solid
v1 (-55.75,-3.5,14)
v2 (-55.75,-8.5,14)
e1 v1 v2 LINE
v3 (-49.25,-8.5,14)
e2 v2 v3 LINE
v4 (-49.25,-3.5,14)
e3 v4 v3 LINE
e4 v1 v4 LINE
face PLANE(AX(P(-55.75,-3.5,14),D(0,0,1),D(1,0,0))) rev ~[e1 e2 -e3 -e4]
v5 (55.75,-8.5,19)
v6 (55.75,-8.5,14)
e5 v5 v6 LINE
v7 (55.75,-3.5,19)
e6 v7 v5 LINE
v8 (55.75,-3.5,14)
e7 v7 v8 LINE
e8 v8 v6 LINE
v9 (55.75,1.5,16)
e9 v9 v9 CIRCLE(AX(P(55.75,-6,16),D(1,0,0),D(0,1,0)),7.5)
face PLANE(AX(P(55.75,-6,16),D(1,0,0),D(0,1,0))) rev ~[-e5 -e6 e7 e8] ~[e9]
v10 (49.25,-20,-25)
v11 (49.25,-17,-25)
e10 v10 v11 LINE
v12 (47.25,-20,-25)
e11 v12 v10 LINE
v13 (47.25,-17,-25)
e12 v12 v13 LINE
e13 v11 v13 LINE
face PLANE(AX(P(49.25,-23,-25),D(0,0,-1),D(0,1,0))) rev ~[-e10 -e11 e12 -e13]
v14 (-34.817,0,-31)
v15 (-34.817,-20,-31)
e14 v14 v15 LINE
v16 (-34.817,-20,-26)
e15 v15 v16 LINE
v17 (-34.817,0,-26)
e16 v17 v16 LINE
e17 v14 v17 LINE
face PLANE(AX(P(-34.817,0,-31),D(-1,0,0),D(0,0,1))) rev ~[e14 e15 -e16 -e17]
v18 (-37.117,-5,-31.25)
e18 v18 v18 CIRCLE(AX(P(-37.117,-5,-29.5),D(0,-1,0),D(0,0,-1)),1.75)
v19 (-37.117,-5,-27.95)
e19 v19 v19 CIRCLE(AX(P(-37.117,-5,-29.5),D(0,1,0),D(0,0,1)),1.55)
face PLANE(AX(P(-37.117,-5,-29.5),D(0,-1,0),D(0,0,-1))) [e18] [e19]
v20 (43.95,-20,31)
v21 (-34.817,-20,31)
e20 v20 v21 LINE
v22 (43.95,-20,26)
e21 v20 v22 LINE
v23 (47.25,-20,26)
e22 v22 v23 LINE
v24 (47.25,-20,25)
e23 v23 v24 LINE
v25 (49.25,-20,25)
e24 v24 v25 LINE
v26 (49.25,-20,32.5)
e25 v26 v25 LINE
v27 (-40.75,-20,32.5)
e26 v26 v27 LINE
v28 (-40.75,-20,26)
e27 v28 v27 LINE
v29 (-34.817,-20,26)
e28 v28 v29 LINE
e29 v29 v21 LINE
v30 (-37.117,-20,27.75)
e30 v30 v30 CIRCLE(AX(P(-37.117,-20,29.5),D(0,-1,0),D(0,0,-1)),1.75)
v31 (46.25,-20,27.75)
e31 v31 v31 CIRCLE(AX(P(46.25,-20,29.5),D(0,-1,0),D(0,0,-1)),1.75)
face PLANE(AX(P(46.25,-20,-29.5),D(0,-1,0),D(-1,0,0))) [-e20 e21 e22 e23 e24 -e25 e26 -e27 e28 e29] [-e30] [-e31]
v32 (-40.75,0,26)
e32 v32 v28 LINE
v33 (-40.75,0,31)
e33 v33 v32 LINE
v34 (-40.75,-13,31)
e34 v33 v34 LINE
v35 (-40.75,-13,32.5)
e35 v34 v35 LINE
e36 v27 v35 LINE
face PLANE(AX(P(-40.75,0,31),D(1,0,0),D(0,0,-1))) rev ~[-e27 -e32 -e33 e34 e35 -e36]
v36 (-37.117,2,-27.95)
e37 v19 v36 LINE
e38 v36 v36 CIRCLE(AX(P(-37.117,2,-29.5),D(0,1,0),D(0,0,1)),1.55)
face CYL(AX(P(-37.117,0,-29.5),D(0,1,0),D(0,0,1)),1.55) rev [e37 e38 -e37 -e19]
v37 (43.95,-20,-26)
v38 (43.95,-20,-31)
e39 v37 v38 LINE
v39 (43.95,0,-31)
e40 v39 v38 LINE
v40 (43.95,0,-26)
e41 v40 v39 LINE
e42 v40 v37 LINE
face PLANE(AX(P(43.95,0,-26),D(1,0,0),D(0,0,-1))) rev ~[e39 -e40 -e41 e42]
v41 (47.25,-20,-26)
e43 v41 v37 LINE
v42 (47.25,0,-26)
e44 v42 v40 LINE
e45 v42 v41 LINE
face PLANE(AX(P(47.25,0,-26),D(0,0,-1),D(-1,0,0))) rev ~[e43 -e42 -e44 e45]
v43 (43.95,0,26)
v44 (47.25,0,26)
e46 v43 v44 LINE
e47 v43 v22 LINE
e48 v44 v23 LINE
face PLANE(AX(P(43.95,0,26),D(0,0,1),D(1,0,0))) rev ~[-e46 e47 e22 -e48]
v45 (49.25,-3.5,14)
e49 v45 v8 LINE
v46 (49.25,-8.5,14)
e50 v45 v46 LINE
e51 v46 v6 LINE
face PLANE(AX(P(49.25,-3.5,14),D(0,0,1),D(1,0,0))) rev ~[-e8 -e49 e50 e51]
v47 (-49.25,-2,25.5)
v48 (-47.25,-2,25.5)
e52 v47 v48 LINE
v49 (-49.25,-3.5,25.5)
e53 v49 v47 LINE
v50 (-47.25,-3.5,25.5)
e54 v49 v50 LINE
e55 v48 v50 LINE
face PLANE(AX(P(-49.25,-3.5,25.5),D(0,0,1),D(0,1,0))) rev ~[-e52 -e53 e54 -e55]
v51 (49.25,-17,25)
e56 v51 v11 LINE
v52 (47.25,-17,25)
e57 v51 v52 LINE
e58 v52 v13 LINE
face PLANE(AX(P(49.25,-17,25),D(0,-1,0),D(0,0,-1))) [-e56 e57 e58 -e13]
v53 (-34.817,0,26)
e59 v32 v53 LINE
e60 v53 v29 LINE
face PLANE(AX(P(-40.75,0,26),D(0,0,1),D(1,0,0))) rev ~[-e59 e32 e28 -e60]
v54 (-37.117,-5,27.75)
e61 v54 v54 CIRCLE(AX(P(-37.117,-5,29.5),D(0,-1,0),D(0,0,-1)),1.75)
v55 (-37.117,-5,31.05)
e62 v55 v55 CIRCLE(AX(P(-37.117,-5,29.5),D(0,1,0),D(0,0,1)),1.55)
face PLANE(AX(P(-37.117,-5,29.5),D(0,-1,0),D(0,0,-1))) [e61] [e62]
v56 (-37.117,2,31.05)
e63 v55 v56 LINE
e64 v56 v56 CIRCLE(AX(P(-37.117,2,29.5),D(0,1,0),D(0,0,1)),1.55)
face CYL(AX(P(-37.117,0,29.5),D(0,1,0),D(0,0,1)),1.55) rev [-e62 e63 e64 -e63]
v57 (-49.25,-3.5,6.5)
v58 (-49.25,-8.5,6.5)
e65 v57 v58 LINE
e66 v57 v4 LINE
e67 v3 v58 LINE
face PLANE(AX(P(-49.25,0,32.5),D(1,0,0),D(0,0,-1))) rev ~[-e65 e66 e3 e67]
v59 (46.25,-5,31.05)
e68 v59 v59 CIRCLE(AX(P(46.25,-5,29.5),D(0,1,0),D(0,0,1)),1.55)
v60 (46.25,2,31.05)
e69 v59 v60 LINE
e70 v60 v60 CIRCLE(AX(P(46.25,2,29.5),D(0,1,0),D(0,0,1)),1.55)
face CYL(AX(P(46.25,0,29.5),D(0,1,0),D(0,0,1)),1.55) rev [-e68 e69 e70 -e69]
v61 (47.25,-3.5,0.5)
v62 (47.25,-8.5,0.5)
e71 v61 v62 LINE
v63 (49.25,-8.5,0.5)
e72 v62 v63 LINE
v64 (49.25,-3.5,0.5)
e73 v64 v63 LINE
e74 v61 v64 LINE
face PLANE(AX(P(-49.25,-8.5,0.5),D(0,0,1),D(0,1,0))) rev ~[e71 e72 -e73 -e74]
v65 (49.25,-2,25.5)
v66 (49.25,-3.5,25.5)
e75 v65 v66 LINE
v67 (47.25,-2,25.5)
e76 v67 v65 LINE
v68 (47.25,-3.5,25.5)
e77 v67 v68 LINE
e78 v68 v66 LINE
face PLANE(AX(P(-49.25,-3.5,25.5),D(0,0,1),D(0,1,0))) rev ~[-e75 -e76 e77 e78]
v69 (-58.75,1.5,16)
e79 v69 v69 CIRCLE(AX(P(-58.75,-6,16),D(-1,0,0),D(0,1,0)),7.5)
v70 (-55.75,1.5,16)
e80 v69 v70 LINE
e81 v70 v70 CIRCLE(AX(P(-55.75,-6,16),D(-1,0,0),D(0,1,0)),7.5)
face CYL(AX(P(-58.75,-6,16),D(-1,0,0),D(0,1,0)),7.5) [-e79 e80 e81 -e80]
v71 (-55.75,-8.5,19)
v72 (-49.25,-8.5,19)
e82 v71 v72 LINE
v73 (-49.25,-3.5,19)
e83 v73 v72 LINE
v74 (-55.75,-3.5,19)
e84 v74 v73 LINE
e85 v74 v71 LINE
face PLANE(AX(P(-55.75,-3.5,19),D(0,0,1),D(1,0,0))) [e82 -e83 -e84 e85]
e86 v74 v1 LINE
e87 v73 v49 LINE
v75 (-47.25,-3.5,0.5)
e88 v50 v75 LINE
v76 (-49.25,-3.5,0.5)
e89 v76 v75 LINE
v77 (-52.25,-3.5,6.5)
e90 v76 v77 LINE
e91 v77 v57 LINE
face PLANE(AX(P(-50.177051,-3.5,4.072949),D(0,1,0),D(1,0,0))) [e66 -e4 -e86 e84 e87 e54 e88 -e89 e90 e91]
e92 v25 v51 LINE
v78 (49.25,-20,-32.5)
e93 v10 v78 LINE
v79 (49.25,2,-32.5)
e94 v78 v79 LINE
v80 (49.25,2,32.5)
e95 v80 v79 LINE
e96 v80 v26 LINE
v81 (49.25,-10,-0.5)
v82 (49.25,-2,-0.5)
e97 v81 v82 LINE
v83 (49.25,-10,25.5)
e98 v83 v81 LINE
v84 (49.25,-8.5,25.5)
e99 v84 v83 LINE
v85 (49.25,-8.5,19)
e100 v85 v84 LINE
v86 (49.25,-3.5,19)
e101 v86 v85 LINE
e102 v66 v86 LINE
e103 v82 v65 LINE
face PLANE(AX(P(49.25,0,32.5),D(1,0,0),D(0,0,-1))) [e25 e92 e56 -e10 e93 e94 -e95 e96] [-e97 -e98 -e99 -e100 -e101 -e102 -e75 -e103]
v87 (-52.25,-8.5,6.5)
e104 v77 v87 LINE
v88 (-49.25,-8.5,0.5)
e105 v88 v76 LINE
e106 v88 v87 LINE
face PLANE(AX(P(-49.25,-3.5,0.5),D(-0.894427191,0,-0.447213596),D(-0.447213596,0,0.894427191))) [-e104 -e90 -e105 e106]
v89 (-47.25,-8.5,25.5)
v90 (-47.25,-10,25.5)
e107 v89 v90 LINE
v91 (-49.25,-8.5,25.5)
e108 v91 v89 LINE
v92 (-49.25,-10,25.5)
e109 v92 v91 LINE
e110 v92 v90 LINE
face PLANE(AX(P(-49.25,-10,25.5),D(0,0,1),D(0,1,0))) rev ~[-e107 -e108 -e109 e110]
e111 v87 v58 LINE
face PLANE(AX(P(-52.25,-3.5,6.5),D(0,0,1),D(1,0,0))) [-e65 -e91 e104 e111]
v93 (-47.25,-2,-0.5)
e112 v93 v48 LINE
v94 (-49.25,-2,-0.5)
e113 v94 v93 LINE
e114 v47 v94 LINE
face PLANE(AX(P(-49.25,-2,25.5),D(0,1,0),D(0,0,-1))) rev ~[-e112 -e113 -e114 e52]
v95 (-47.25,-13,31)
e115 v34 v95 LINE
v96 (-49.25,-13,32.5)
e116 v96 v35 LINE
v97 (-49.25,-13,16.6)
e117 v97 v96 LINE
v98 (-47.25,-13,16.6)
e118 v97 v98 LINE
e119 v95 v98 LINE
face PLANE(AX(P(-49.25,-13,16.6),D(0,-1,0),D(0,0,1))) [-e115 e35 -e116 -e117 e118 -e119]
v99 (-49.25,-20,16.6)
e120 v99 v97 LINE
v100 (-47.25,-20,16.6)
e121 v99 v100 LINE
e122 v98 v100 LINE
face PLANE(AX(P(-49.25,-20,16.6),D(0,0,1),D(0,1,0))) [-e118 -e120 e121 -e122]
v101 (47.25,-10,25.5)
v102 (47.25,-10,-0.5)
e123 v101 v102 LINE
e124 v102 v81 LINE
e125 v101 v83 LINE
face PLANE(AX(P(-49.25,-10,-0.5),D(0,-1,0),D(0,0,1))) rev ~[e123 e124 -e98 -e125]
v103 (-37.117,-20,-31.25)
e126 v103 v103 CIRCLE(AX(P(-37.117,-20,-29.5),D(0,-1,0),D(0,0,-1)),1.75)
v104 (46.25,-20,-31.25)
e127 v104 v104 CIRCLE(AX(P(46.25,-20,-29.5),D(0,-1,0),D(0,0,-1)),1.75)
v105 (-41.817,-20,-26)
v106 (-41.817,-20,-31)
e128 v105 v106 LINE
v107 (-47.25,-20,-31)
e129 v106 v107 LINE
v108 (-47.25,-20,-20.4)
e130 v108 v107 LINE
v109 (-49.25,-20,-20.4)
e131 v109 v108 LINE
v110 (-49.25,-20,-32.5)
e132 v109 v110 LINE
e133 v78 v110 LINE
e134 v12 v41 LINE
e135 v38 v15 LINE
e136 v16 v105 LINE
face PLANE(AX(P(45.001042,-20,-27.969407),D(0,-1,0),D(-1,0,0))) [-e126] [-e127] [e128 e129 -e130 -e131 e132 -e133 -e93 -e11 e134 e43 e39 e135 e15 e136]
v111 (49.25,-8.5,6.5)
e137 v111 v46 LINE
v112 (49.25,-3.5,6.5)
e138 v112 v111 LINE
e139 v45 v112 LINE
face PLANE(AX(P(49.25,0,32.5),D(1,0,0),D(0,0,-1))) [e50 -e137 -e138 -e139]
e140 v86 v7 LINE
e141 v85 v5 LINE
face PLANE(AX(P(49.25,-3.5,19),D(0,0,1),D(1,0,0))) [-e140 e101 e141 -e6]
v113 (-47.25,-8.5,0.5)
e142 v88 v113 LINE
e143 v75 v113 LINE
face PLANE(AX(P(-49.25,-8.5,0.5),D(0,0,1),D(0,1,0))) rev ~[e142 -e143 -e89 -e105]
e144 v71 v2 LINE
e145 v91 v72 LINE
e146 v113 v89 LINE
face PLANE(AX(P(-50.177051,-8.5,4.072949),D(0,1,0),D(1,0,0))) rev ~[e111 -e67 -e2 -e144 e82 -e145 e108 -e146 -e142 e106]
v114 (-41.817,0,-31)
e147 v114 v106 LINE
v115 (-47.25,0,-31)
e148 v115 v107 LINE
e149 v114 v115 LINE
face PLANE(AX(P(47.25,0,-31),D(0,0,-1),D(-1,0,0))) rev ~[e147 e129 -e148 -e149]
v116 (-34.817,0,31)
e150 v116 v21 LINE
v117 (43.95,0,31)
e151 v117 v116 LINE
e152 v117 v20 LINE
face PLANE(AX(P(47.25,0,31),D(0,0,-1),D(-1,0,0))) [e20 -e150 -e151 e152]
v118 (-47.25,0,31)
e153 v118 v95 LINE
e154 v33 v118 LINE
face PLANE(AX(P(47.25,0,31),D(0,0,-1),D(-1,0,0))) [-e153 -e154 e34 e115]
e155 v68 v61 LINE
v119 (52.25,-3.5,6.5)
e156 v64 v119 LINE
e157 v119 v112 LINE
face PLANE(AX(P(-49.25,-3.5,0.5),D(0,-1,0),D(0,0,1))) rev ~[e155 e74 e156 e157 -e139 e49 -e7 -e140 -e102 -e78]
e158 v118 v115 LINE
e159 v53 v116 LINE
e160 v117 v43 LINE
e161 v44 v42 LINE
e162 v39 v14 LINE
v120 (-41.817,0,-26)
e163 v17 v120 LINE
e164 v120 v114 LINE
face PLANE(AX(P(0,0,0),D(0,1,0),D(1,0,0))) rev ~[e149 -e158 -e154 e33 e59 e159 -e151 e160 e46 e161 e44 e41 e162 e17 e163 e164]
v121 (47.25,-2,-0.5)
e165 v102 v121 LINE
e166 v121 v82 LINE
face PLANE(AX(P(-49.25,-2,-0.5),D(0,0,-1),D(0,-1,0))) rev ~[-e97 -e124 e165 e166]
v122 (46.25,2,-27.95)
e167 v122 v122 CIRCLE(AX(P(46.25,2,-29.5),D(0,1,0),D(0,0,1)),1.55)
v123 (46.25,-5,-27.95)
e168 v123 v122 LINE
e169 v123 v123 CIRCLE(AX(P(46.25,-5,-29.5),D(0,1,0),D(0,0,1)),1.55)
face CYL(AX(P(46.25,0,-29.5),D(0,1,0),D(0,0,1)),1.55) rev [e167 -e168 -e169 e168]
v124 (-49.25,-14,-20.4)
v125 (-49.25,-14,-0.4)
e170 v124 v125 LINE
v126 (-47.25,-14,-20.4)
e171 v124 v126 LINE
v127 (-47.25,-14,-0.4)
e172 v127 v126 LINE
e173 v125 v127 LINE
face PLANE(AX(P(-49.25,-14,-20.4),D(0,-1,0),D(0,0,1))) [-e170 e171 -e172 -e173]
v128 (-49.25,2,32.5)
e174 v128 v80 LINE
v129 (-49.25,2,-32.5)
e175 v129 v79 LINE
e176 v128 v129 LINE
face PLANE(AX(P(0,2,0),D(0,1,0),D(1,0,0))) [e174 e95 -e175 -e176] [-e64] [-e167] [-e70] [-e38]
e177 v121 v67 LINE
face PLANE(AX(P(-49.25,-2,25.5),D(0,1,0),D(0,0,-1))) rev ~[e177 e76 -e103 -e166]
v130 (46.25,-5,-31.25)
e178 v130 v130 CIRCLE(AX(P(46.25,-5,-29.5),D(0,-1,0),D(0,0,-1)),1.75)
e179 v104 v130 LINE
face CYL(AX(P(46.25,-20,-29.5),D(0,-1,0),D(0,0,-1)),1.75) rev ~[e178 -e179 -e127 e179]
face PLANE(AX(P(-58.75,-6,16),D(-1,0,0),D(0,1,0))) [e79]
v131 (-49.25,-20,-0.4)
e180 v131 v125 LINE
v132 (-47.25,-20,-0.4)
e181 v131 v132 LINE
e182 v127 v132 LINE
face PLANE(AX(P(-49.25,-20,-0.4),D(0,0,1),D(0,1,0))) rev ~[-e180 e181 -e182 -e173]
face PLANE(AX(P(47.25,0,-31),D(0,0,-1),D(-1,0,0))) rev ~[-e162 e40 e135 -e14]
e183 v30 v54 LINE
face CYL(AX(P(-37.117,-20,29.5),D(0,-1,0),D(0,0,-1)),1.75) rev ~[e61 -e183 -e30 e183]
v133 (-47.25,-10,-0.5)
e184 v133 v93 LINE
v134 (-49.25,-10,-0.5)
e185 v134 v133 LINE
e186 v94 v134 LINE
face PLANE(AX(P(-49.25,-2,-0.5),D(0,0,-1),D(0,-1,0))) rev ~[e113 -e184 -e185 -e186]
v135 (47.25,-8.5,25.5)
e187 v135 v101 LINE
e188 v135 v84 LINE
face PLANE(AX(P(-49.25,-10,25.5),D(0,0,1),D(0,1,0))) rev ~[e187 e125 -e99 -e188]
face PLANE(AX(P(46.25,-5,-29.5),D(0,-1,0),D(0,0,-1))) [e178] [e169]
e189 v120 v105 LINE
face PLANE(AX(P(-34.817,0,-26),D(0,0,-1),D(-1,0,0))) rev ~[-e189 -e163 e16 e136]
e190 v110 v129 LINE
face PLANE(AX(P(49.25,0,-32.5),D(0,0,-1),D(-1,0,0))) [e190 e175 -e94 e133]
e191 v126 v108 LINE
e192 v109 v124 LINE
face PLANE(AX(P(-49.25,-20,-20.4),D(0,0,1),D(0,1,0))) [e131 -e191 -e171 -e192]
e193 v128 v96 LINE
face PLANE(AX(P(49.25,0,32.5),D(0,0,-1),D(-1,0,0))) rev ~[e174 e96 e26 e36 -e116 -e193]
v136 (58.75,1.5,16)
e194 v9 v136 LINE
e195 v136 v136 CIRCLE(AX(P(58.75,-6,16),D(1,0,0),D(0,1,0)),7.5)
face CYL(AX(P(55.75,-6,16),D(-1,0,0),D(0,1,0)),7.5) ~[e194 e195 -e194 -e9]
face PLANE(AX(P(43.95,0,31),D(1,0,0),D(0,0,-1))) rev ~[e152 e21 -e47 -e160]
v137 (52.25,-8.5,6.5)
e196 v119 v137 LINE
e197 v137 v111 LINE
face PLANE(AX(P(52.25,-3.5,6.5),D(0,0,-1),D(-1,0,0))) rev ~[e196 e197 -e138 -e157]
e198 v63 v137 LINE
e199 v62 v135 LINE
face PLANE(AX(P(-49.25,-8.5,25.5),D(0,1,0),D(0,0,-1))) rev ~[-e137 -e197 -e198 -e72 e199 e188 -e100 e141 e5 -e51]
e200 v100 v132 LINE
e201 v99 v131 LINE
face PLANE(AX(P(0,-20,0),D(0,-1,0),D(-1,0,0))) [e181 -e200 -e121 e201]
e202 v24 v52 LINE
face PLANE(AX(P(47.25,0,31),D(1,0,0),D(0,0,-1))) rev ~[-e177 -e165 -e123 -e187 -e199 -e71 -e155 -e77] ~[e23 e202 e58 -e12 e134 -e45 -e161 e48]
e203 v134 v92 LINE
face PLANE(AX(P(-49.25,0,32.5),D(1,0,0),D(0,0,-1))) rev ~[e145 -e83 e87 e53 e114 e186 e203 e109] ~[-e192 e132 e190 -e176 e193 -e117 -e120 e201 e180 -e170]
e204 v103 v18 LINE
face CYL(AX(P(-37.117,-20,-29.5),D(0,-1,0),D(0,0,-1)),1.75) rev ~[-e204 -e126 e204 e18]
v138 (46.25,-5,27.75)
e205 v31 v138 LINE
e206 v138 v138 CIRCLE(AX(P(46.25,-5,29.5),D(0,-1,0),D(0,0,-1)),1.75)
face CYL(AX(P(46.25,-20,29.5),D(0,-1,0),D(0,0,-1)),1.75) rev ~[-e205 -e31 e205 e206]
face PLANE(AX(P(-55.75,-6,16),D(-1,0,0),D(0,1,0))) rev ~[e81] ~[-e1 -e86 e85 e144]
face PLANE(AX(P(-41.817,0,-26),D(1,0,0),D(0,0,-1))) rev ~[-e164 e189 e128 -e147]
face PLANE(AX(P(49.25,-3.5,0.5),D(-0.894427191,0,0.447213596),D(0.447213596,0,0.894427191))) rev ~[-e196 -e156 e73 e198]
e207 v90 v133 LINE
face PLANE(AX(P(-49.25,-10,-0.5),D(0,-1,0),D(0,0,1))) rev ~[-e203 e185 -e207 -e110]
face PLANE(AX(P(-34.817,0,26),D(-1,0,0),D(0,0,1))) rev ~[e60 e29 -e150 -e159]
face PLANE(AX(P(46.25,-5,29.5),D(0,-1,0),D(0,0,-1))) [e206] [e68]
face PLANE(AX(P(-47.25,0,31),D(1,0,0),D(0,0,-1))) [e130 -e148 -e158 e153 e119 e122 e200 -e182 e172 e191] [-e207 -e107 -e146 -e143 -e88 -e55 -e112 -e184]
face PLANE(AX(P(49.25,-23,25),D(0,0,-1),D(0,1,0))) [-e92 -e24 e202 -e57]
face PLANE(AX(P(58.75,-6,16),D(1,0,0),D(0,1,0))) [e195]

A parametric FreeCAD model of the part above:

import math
import FreeCAD as App
import Part
import Sketcher
from FreeCAD import Vector

doc = App.newDocument("Part")
body = doc.addObject("PartDesign::Body", "Body")

# Sketch on XZ plane
sketch1 = body.newObject("Sketcher::SketchObject", "Sketch")
sketch1.AttachmentSupport = (doc.getObject("XZ_Plane"), [""])
sketch1.MapMode = "FlatFace"
sketch1.addGeometry(Part.LineSegment(Vector(-49, -32, 0), Vector(-49, 32, 0)), False)
sketch1.addGeometry(Part.LineSegment(Vector(-49, 32, 0), Vector(49, 32, 0)), False)
sketch1.addGeometry(Part.LineSegment(Vector(49, 32, 0), Vector(49, -32, 0)), False)
sketch1.addGeometry(Part.LineSegment(Vector(49, -32, 0), Vector(-49, -32, 0)), False)
sketch1.addConstraint(Sketcher.Constraint("Coincident", 0, 2, 1, 1))
sketch1.addConstraint(Sketcher.Constraint("Coincident", 1, 2, 2, 1))
sketch1.addConstraint(Sketcher.Constraint("Coincident", 2, 2, 3, 1))
sketch1.addConstraint(Sketcher.Constraint("Coincident", 3, 2, 0, 1))
sketch1.addConstraint(Sketcher.Constraint("Vertical", 0))
sketch1.addConstraint(Sketcher.Constraint("Horizontal", 1))
sketch1.addConstraint(Sketcher.Constraint("Vertical", 2))
sketch1.addConstraint(Sketcher.Constraint("Horizontal", 3))
sketch1.addConstraint(Sketcher.Constraint("Symmetric", 0, 2, 2, 2, -1, 1))
sketch1.addConstraint(Sketcher.Constraint("DistanceY", 0, 1, 0, 2, 65.0))
sketch1.addConstraint(Sketcher.Constraint("DistanceX", 1, 1, 1, 2, 98.5))
pad1 = body.newObject("PartDesign::Pad", "Pad")
pad1.Profile = sketch1
pad1.Length = 2
pad1.Reversed = True

# Sketch on XZ plane
sketch2 = body.newObject("Sketcher::SketchObject", "Sketch001")
sketch2.AttachmentSupport = (doc.getObject("XZ_Plane"), [""])
sketch2.MapMode = "FlatFace"
sketch2.addGeometry(Part.LineSegment(Vector(49, -32, 0), Vector(49, 32, 0)), False)
sketch2.addGeometry(Part.LineSegment(Vector(49, 32, 0), Vector(-49, 32, 0)), False)
sketch2.addGeometry(Part.LineSegment(Vector(-49, 32, 0), Vector(-49, -32, 0)), False)
sketch2.addGeometry(Part.LineSegment(Vector(-49, -32, 0), Vector(49, -32, 0)), False)
sketch2.addGeometry(Part.LineSegment(Vector(-47, 31, 0), Vector(47, 31, 0)), False)
sketch2.addGeometry(Part.LineSegment(Vector(47, 31, 0), Vector(47, -31, 0)), False)
sketch2.addGeometry(Part.LineSegment(Vector(47, -31, 0), Vector(-47, -31, 0)), False)
sketch2.addGeometry(Part.LineSegment(Vector(-47, -31, 0), Vector(-47, 31, 0)), False)
sketch2.addConstraint(Sketcher.Constraint("Coincident", 0, 2, 1, 1))
sketch2.addConstraint(Sketcher.Constraint("Coincident", 1, 2, 2, 1))
sketch2.addConstraint(Sketcher.Constraint("Coincident", 2, 2, 3, 1))
sketch2.addConstraint(Sketcher.Constraint("Coincident", 3, 2, 0, 1))
sketch2.addConstraint(Sketcher.Constraint("Coincident", 4, 2, 5, 1))
sketch2.addConstraint(Sketcher.Constraint("Coincident", 5, 2, 6, 1))
sketch2.addConstraint(Sketcher.Constraint("Coincident", 6, 2, 7, 1))
sketch2.addConstraint(Sketcher.Constraint("Coincident", 7, 2, 4, 1))
sketch2.addConstraint(Sketcher.Constraint("Vertical", 0))
sketch2.addConstraint(Sketcher.Constraint("Horizontal", 1))
sketch2.addConstraint(Sketcher.Constraint("Vertical", 2))
sketch2.addConstraint(Sketcher.Constraint("Horizontal", 3))
sketch2.addConstraint(Sketcher.Constraint("Horizontal", 4))
sketch2.addConstraint(Sketcher.Constraint("Vertical", 5))
sketch2.addConstraint(Sketcher.Constraint("Horizontal", 6))
sketch2.addConstraint(Sketcher.Constraint("Vertical", 7))
sketch2.addConstraint(Sketcher.Constraint("Symmetric", 0, 2, 2, 2, -1, 1))
sketch2.addConstraint(Sketcher.Constraint("Symmetric", 4, 2, 6, 2, -1, 1))
sketch2.addConstraint(Sketcher.Constraint("DistanceY", 0, 1, 0, 2, 65.0))
sketch2.addConstraint(Sketcher.Constraint("DistanceY", 5, 2, 5, 1, 62.0))
sketch2.addConstraint(Sketcher.Constraint("DistanceX", 1, 2, 1, 1, 98.5))
sketch2.addConstraint(Sketcher.Constraint("DistanceX", 4, 1, 4, 2, 94.5))
pad2 = body.newObject("PartDesign::Pad", "Pad001")
pad2.Profile = sketch2
pad2.Length = 20

# Sketch on YZ plane
sketch3 = body.newObject("Sketcher::SketchObject", "Sketch002")
sketch3.AttachmentSupport = (doc.getObject("YZ_Plane"), [""])
sketch3.MapMode = "FlatFace"
sketch3.AttachmentOffset = App.Placement(Vector(0, 0, -49.25), App.Rotation())
sketch3.addGeometry(Part.LineSegment(Vector(-14, -20, 0), Vector(-20, -20, 0)), False)
sketch3.addGeometry(Part.LineSegment(Vector(-20, -20, 0), Vector(-20, 0, 0)), False)
sketch3.addGeometry(Part.LineSegment(Vector(-20, 0, 0), Vector(-14, 0, 0)), False)
sketch3.addGeometry(Part.LineSegment(Vector(-14, 0, 0), Vector(-14, -20, 0)), False)
sketch3.addGeometry(Part.LineSegment(Vector(-13, 17, 0), Vector(-20, 17, 0)), False)
sketch3.addGeometry(Part.LineSegment(Vector(-20, 17, 0), Vector(-20, 32, 0)), False)
sketch3.addGeometry(Part.LineSegment(Vector(-20, 32, 0), Vector(-13, 32, 0)), False)
sketch3.addGeometry(Part.LineSegment(Vector(-13, 32, 0), Vector(-13, 17, 0)), False)
sketch3.addConstraint(Sketcher.Constraint("Coincident", 0, 2, 1, 1))
sketch3.addConstraint(Sketcher.Constraint("Coincident", 1, 2, 2, 1))
sketch3.addConstraint(Sketcher.Constraint("Coincident", 2, 2, 3, 1))
sketch3.addConstraint(Sketcher.Constraint("Coincident", 3, 2, 0, 1))
sketch3.addConstraint(Sketcher.Constraint("Coincident", 4, 2, 5, 1))
sketch3.addConstraint(Sketcher.Constraint("Coincident", 5, 2, 6, 1))
sketch3.addConstraint(Sketcher.Constraint("Coincident", 6, 2, 7, 1))
sketch3.addConstraint(Sketcher.Constraint("Coincident", 7, 2, 4, 1))
sketch3.addConstraint(Sketcher.Constraint("Horizontal", 0))
sketch3.addConstraint(Sketcher.Constraint("Vertical", 1))
sketch3.addConstraint(Sketcher.Constraint("Horizontal", 2))
sketch3.addConstraint(Sketcher.Constraint("Vertical", 3))
sketch3.addConstraint(Sketcher.Constraint("Horizontal", 4))
sketch3.addConstraint(Sketcher.Constraint("Vertical", 5))
sketch3.addConstraint(Sketcher.Constraint("Horizontal", 6))
sketch3.addConstraint(Sketcher.Constraint("Vertical", 7))
sketch3.addConstraint(Sketcher.Constraint("Vertical", 1, 2, 4, 2))
sketch3.addConstraint(Sketcher.Constraint("DistanceX", 0, 2, 0, 1, 6.0))
sketch3.addConstraint(Sketcher.Constraint("DistanceX", 4, 2, 4, 1, 7.0))
sketch3.addConstraint(Sketcher.Constraint("DistanceY", 1, 1, 1, 2, 20.0))
sketch3.addConstraint(Sketcher.Constraint("DistanceY", 5, 1, 5, 2, 15.9))
sketch3.addConstraint(Sketcher.Constraint("DistanceX", 0, 2, -1, 1, 20.0))
sketch3.addConstraint(Sketcher.Constraint("DistanceY", 1, 2, 4, 2, 17.0))
sketch3.addConstraint(Sketcher.Constraint("DistanceY", 0, 2, -1, 1, 20.4))
pocket1 = body.newObject("PartDesign::Pocket", "Pocket")
pocket1.Profile = sketch3
pocket1.Length = 8.5
pocket1.Reversed = True

# Sketch on YZ plane
sketch4 = body.newObject("Sketcher::SketchObject", "Sketch003")
sketch4.AttachmentSupport = (doc.getObject("YZ_Plane"), [""])
sketch4.MapMode = "FlatFace"
sketch4.AttachmentOffset = App.Placement(Vector(0, 0, -49.25), App.Rotation())
sketch4.addGeometry(Part.LineSegment(Vector(-3.5, 25.5, 0), Vector(-2, 25.5, 0)), False)
sketch4.addGeometry(Part.LineSegment(Vector(-2, 25.5, 0), Vector(-2, -0.5, 0)), False)
sketch4.addGeometry(Part.LineSegment(Vector(-2, -0.5, 0), Vector(-10, -0.5, 0)), False)
sketch4.addGeometry(Part.LineSegment(Vector(-10, -0.5, 0), Vector(-10, 25.5, 0)), False)
sketch4.addGeometry(Part.LineSegment(Vector(-10, 25.5, 0), Vector(-8.5, 25.5, 0)), False)
sketch4.addGeometry(Part.LineSegment(Vector(-8.5, 25.5, 0), Vector(-8.5, 0.5, 0)), False)
sketch4.addGeometry(Part.LineSegment(Vector(-8.5, 0.5, 0), Vector(-3.5, 0.5, 0)), False)
sketch4.addGeometry(Part.LineSegment(Vector(-3.5, 0.5, 0), Vector(-3.5, 25.5, 0)), False)
sketch4.addConstraint(Sketcher.Constraint("Coincident", 0, 2, 1, 1))
sketch4.addConstraint(Sketcher.Constraint("Coincident", 1, 2, 2, 1))
sketch4.addConstraint(Sketcher.Constraint("Coincident", 2, 2, 3, 1))
sketch4.addConstraint(Sketcher.Constraint("Coincident", 3, 2, 4, 1))
sketch4.addConstraint(Sketcher.Constraint("Coincident", 4, 2, 5, 1))
sketch4.addConstraint(Sketcher.Constraint("Coincident", 5, 2, 6, 1))
sketch4.addConstraint(Sketcher.Constraint("Coincident", 6, 2, 7, 1))
sketch4.addConstraint(Sketcher.Constraint("Coincident", 7, 2, 0, 1))
sketch4.addConstraint(Sketcher.Constraint("Horizontal", 0))
sketch4.addConstraint(Sketcher.Constraint("Vertical", 1))
sketch4.addConstraint(Sketcher.Constraint("Horizontal", 2))
sketch4.addConstraint(Sketcher.Constraint("Vertical", 3))
sketch4.addConstraint(Sketcher.Constraint("Horizontal", 4))
sketch4.addConstraint(Sketcher.Constraint("Vertical", 5))
sketch4.addConstraint(Sketcher.Constraint("Horizontal", 6))
sketch4.addConstraint(Sketcher.Constraint("Vertical", 7))
sketch4.addConstraint(Sketcher.Constraint("Horizontal", 0, 2, 3, 2))
sketch4.addConstraint(Sketcher.Constraint("Equal", 0, 4))
sketch4.addConstraint(Sketcher.Constraint("DistanceX", 2, 2, 2, 1, 8.0))
sketch4.addConstraint(Sketcher.Constraint("DistanceX", 6, 1, 6, 2, 5.0))
sketch4.addConstraint(Sketcher.Constraint("DistanceY", 1, 2, 1, 1, 26.0))
sketch4.addConstraint(Sketcher.Constraint("DistanceY", 5, 2, 5, 1, 25.0))
sketch4.addConstraint(Sketcher.Constraint("DistanceX", 0, 2, -1, 1, 2.0))
sketch4.addConstraint(Sketcher.Constraint("DistanceY", -1, 1, 0, 2, 25.5))
pocket2 = body.newObject("PartDesign::Pocket", "Pocket001")
pocket2.Profile = sketch4
pocket2.Type = "ThroughAll"
pocket2.Reversed = True

# Sketch on XZ plane
sketch5 = body.newObject("Sketcher::SketchObject", "Sketch004")
sketch5.AttachmentSupport = (doc.getObject("XZ_Plane"), [""])
sketch5.MapMode = "FlatFace"
sketch5.AttachmentOffset = App.Placement(Vector(0, 0, 3.5), App.Rotation())
sketch5.addGeometry(Part.LineSegment(Vector(-49.2, 0.5, 0), Vector(-52.2, 6.5, 0)), False)
sketch5.addGeometry(Part.LineSegment(Vector(-52.2, 6.5, 0), Vector(-49.2, 6.5, 0)), False)
sketch5.addGeometry(Part.LineSegment(Vector(-49.2, 6.5, 0), Vector(-49.2, 0.5, 0)), False)
sketch5.addGeometry(Part.LineSegment(Vector(52.2, 6.5, 0), Vector(49.2, 0.5, 0)), False)
sketch5.addGeometry(Part.LineSegment(Vector(49.2, 0.5, 0), Vector(49.2, 6.5, 0)), False)
sketch5.addGeometry(Part.LineSegment(Vector(49.2, 6.5, 0), Vector(52.2, 6.5, 0)), False)
sketch5.addGeometry(Part.LineSegment(Vector(49.2, 14, 0), Vector(49.2, 19, 0)), False)
sketch5.addGeometry(Part.LineSegment(Vector(49.2, 19, 0), Vector(55.8, 19, 0)), False)
sketch5.addGeometry(Part.LineSegment(Vector(55.8, 19, 0), Vector(55.8, 14, 0)), False)
sketch5.addGeometry(Part.LineSegment(Vector(55.8, 14, 0), Vector(49.2, 14, 0)), False)
sketch5.addGeometry(Part.LineSegment(Vector(-55.8, 14, 0), Vector(-55.8, 19, 0)), False)
sketch5.addGeometry(Part.LineSegment(Vector(-55.8, 19, 0), Vector(-49.2, 19, 0)), False)
sketch5.addGeometry(Part.LineSegment(Vector(-49.2, 19, 0), Vector(-49.2, 14, 0)), False)
sketch5.addGeometry(Part.LineSegment(Vector(-49.2, 14, 0), Vector(-55.8, 14, 0)), False)
sketch5.addConstraint(Sketcher.Constraint("Coincident", 0, 2, 1, 1))
sketch5.addConstraint(Sketcher.Constraint("Coincident", 1, 2, 2, 1))
sketch5.addConstraint(Sketcher.Constraint("Coincident", 2, 2, 0, 1))
sketch5.addConstraint(Sketcher.Constraint("Coincident", 3, 2, 4, 1))
sketch5.addConstraint(Sketcher.Constraint("Coincident", 4, 2, 5, 1))
sketch5.addConstraint(Sketcher.Constraint("Coincident", 5, 2, 3, 1))
sketch5.addConstraint(Sketcher.Constraint("Coincident", 6, 2, 7, 1))
sketch5.addConstraint(Sketcher.Constraint("Coincident", 7, 2, 8, 1))
sketch5.addConstraint(Sketcher.Constraint("Coincident", 8, 2, 9, 1))
sketch5.addConstraint(Sketcher.Constraint("Coincident", 9, 2, 6, 1))
sketch5.addConstraint(Sketcher.Constraint("Coincident", 10, 2, 11, 1))
sketch5.addConstraint(Sketcher.Constraint("Coincident", 11, 2, 12, 1))
sketch5.addConstraint(Sketcher.Constraint("Coincident", 12, 2, 13, 1))
sketch5.addConstraint(Sketcher.Constraint("Coincident", 13, 2, 10, 1))
sketch5.addConstraint(Sketcher.Constraint("Horizontal", 1))
sketch5.addConstraint(Sketcher.Constraint("Vertical", 2))
sketch5.addConstraint(Sketcher.Constraint("Vertical", 4))
sketch5.addConstraint(Sketcher.Constraint("Horizontal", 5))
sketch5.addConstraint(Sketcher.Constraint("Vertical", 6))
sketch5.addConstraint(Sketcher.Constraint("Horizontal", 7))
sketch5.addConstraint(Sketcher.Constraint("Vertical", 8))
sketch5.addConstraint(Sketcher.Constraint("Horizontal", 9))
sketch5.addConstraint(Sketcher.Constraint("Vertical", 10))
sketch5.addConstraint(Sketcher.Constraint("Horizontal", 11))
sketch5.addConstraint(Sketcher.Constraint("Vertical", 12))
sketch5.addConstraint(Sketcher.Constraint("Horizontal", 13))
sketch5.addConstraint(Sketcher.Constraint("Symmetric", 2, 2, 3, 2, -2))
sketch5.addConstraint(Sketcher.Constraint("Symmetric", 0, 2, 5, 2, -2))
sketch5.addConstraint(Sketcher.Constraint("Symmetric", 7, 2, 10, 2, -2))
sketch5.addConstraint(Sketcher.Constraint("Symmetric", 9, 2, 12, 2, -2))
sketch5.addConstraint(Sketcher.Constraint("Vertical", 4, 2, 6, 2))
sketch5.addConstraint(Sketcher.Constraint("DistanceX", 1, 1, 1, 2, 3.0))
sketch5.addConstraint(Sketcher.Constraint("DistanceY", 2, 2, 2, 1, 6.0))
sketch5.addConstraint(Sketcher.Constraint("DistanceY", 6, 1, 6, 2, 5.0))
sketch5.addConstraint(Sketcher.Constraint("DistanceX", 7, 1, 7, 2, 6.5))
sketch5.addConstraint(Sketcher.Constraint("DistanceY", -1, 1, 6, 2, 19.0))
sketch5.addConstraint(Sketcher.Constraint("DistanceX", 1, 2, 7, 2, 105.0))
sketch5.addConstraint(Sketcher.Constraint("DistanceY", -1, 1, 0, 2, 6.5))
pad3 = body.newObject("PartDesign::Pad", "Pad002")
pad3.Profile = sketch5
pad3.Length = 5

# Sketch on XZ plane
sketch6 = body.newObject("Sketcher::SketchObject", "Sketch005")
sketch6.AttachmentSupport = (doc.getObject("XZ_Plane"), [""])
sketch6.MapMode = "FlatFace"
sketch6.AttachmentOffset = App.Placement(Vector(0, 0, -2), App.Rotation())
sketch6.addGeometry(Part.Circle(Vector(46.2, -29.5, 0), Vector(0, 0, 1), 1.6), False)
sketch6.addGeometry(Part.Circle(Vector(46.2, 29.5, 0), Vector(0, 0, 1), 1.6), False)
sketch6.addGeometry(Part.Circle(Vector(-37.1, -29.5, 0), Vector(0, 0, 1), 1.6), False)
sketch6.addGeometry(Part.Circle(Vector(-37.1, 29.5, 0), Vector(0, 0, 1), 1.6), False)
sketch6.addConstraint(Sketcher.Constraint("Equal", 0, 1))
sketch6.addConstraint(Sketcher.Constraint("Equal", 1, 2))
sketch6.addConstraint(Sketcher.Constraint("Equal", 2, 3))
sketch6.addConstraint(Sketcher.Constraint("Symmetric", 0, 3, 1, 3, -1))
sketch6.addConstraint(Sketcher.Constraint("Symmetric", 2, 3, 3, 3, -1))
sketch6.addConstraint(Sketcher.Constraint("Horizontal", 0, 3, 2, 3))
sketch6.addConstraint(Sketcher.Constraint("Diameter", 0, 3.1))
sketch6.addConstraint(Sketcher.Constraint("DistanceY", 0, 3, 1, 3, 59.0))
sketch6.addConstraint(Sketcher.Constraint("DistanceX", -1, 1, 0, 3, 46.25))
sketch6.addConstraint(Sketcher.Constraint("DistanceX", 2, 3, -1, 1, 37.117))
pocket3 = body.newObject("PartDesign::Pocket", "Pocket002")
pocket3.Profile = sketch6
pocket3.Type = "ThroughAll"
pocket3.Reversed = True

# Sketch on XZ plane
sketch7 = body.newObject("Sketcher::SketchObject", "Sketch006")
sketch7.AttachmentSupport = (doc.getObject("XZ_Plane"), [""])
sketch7.MapMode = "FlatFace"
sketch7.addGeometry(Part.Circle(Vector(46.2, -29.5, 0), Vector(0, 0, 1), 2.2), False)
sketch7.addGeometry(Part.Circle(Vector(46.2, -29.5, 0), Vector(0, 0, 1), 1.6), False)
sketch7.addGeometry(Part.Circle(Vector(-37.1, -29.5, 0), Vector(0, 0, 1), 2.2), False)
sketch7.addGeometry(Part.Circle(Vector(-37.1, -29.5, 0), Vector(0, 0, 1), 1.6), False)
sketch7.addGeometry(Part.Circle(Vector(46.2, 29.5, 0), Vector(0, 0, 1), 2.2), False)
sketch7.addGeometry(Part.Circle(Vector(46.2, 29.5, 0), Vector(0, 0, 1), 1.6), False)
sketch7.addGeometry(Part.Circle(Vector(-37.1, 29.5, 0), Vector(0, 0, 1), 2.2), False)
sketch7.addGeometry(Part.Circle(Vector(-37.1, 29.5, 0), Vector(0, 0, 1), 1.6), False)
sketch7.addConstraint(Sketcher.Constraint("Coincident", 1, 3, 0, 3))
sketch7.addConstraint(Sketcher.Constraint("Coincident", 3, 3, 2, 3))
sketch7.addConstraint(Sketcher.Constraint("Coincident", 5, 3, 4, 3))
sketch7.addConstraint(Sketcher.Constraint("Coincident", 7, 3, 6, 3))
sketch7.addConstraint(Sketcher.Constraint("Equal", 0, 2))
sketch7.addConstraint(Sketcher.Constraint("Equal", 1, 3))
sketch7.addConstraint(Sketcher.Constraint("Equal", 2, 4))
sketch7.addConstraint(Sketcher.Constraint("Equal", 3, 5))
sketch7.addConstraint(Sketcher.Constraint("Equal", 4, 6))
sketch7.addConstraint(Sketcher.Constraint("Equal", 5, 7))
sketch7.addConstraint(Sketcher.Constraint("Symmetric", 0, 3, 4, 3, -1))
sketch7.addConstraint(Sketcher.Constraint("Symmetric", 2, 3, 6, 3, -1))
sketch7.addConstraint(Sketcher.Constraint("Horizontal", 1, 3, 2, 3))
sketch7.addConstraint(Sketcher.Constraint("Diameter", 0, 4.5))
sketch7.addConstraint(Sketcher.Constraint("Diameter", 1, 3.1))
sketch7.addConstraint(Sketcher.Constraint("DistanceY", 0, 3, 4, 3, 59.0))
sketch7.addConstraint(Sketcher.Constraint("DistanceX", -1, 1, 0, 3, 46.25))
sketch7.addConstraint(Sketcher.Constraint("DistanceX", 2, 3, -1, 1, 37.117))
pad4 = body.newObject("PartDesign::Pad", "Pad003")
pad4.Profile = sketch7
pad4.Length = 20

# Sketch on YZ plane
sketch8 = body.newObject("Sketcher::SketchObject", "Sketch007")
sketch8.AttachmentSupport = (doc.getObject("YZ_Plane"), [""])
sketch8.MapMode = "FlatFace"
sketch8.AttachmentOffset = App.Placement(Vector(0, 0, 49.25), App.Rotation())
sketch8.addGeometry(Part.LineSegment(Vector(-17, 25, 0), Vector(-23, 25, 0)), False)
sketch8.addGeometry(Part.LineSegment(Vector(-23, 25, 0), Vector(-23, -25, 0)), False)
sketch8.addGeometry(Part.LineSegment(Vector(-23, -25, 0), Vector(-17, -25, 0)), False)
sketch8.addGeometry(Part.LineSegment(Vector(-17, -25, 0), Vector(-17, 25, 0)), False)
sketch8.addConstraint(Sketcher.Constraint("Coincident", 0, 2, 1, 1))
sketch8.addConstraint(Sketcher.Constraint("Coincident", 1, 2, 2, 1))
sketch8.addConstraint(Sketcher.Constraint("Coincident", 2, 2, 3, 1))
sketch8.addConstraint(Sketcher.Constraint("Coincident", 3, 2, 0, 1))
sketch8.addConstraint(Sketcher.Constraint("Horizontal", 0))
sketch8.addConstraint(Sketcher.Constraint("Vertical", 1))
sketch8.addConstraint(Sketcher.Constraint("Horizontal", 2))
sketch8.addConstraint(Sketcher.Constraint("Vertical", 3))
sketch8.addConstraint(Sketcher.Constraint("DistanceX", 0, 2, 0, 1, 6.0))
sketch8.addConstraint(Sketcher.Constraint("DistanceY", 1, 2, 1, 1, 50.0))
sketch8.addConstraint(Sketcher.Constraint("DistanceX", 0, 2, -1, 1, 23.0))
sketch8.addConstraint(Sketcher.Constraint("DistanceY", -1, 1, 0, 2, 25.0))
pocket4 = body.newObject("PartDesign::Pocket", "Pocket003")
pocket4.Profile = sketch8
pocket4.Length = 10

# Sketch on XZ plane
sketch9 = body.newObject("Sketcher::SketchObject", "Sketch008")
sketch9.AttachmentSupport = (doc.getObject("XZ_Plane"), [""])
sketch9.MapMode = "FlatFace"
sketch9.addGeometry(Part.LineSegment(Vector(44, -26, 0), Vector(44, -31, 0)), False)
sketch9.addGeometry(Part.LineSegment(Vector(44, -31, 0), Vector(44.6, -31, 0)), False)
sketch9.addGeometry(Part.ArcOfCircle(Part.Circle(Vector(46.2, -29.5, 0), Vector(0, 0, 1), 2.2), math.radians(64), math.radians(222)), False)
sketch9.addGeometry(Part.LineSegment(Vector(47.2, -27.5, 0), Vector(47.2, -26, 0)), False)
sketch9.addGeometry(Part.LineSegment(Vector(47.2, -26, 0), Vector(44, -26, 0)), False)
sketch9.addGeometry(Part.LineSegment(Vector(44.6, 31, 0), Vector(44, 31, 0)), False)
sketch9.addGeometry(Part.LineSegment(Vector(44, 31, 0), Vector(44, 26, 0)), False)
sketch9.addGeometry(Part.LineSegment(Vector(44, 26, 0), Vector(47.2, 26, 0)), False)
sketch9.addGeometry(Part.LineSegment(Vector(47.2, 26, 0), Vector(47.2, 27.5, 0)), False)
sketch9.addGeometry(Part.ArcOfCircle(Part.Circle(Vector(46.2, 29.5, 0), Vector(0, 0, 1), 2.2), math.radians(138), math.radians(296)), False)
sketch9.addGeometry(Part.LineSegment(Vector(-35.4, -31, 0), Vector(-34.8, -31, 0)), False)
sketch9.addGeometry(Part.LineSegment(Vector(-34.8, -31, 0), Vector(-34.8, -26, 0)), False)
sketch9.addGeometry(Part.LineSegment(Vector(-34.8, -26, 0), Vector(-41.8, -26, 0)), False)
sketch9.addGeometry(Part.LineSegment(Vector(-41.8, -26, 0), Vector(-41.8, -31, 0)), False)
sketch9.addGeometry(Part.LineSegment(Vector(-41.8, -31, 0), Vector(-38.8, -31, 0)), False)
sketch9.addGeometry(Part.ArcOfCircle(Part.Circle(Vector(-37.1, -29.5, 0), Vector(0, 0, 1), 2.2), math.radians(-42), math.radians(222)), False)
sketch9.addGeometry(Part.LineSegment(Vector(-34.8, 26, 0), Vector(-34.8, 31, 0)), False)
sketch9.addGeometry(Part.LineSegment(Vector(-34.8, 31, 0), Vector(-35.4, 31, 0)), False)
sketch9.addGeometry(Part.ArcOfCircle(Part.Circle(Vector(-37.1, 29.5, 0), Vector(0, 0, 1), 2.2), math.radians(138), math.radians(402)), False)
sketch9.addGeometry(Part.LineSegment(Vector(-38.8, 31, 0), Vector(-40.8, 31, 0)), False)
sketch9.addGeometry(Part.LineSegment(Vector(-40.8, 31, 0), Vector(-40.8, 26, 0)), False)
sketch9.addGeometry(Part.LineSegment(Vector(-40.8, 26, 0), Vector(-34.8, 26, 0)), False)
sketch9.addConstraint(Sketcher.Constraint("Coincident", 0, 2, 1, 1))
sketch9.addConstraint(Sketcher.Constraint("Coincident", 1, 2, 2, 2))
sketch9.addConstraint(Sketcher.Constraint("Coincident", 2, 1, 3, 1))
sketch9.addConstraint(Sketcher.Constraint("Coincident", 3, 2, 4, 1))
sketch9.addConstraint(Sketcher.Constraint("Coincident", 4, 2, 0, 1))
sketch9.addConstraint(Sketcher.Constraint("Coincident", 5, 2, 6, 1))
sketch9.addConstraint(Sketcher.Constraint("Coincident", 6, 2, 7, 1))
sketch9.addConstraint(Sketcher.Constraint("Coincident", 7, 2, 8, 1))
sketch9.addConstraint(Sketcher.Constraint("Coincident", 8, 2, 9, 2))
sketch9.addConstraint(Sketcher.Constraint("Coincident", 9, 1, 5, 1))
sketch9.addConstraint(Sketcher.Constraint("Coincident", 10, 2, 11, 1))
sketch9.addConstraint(Sketcher.Constraint("Coincident", 11, 2, 12, 1))
sketch9.addConstraint(Sketcher.Constraint("Coincident", 12, 2, 13, 1))
sketch9.addConstraint(Sketcher.Constraint("Coincident", 13, 2, 14, 1))
sketch9.addConstraint(Sketcher.Constraint("Coincident", 14, 2, 15, 2))
sketch9.addConstraint(Sketcher.Constraint("Coincident", 15, 1, 10, 1))
sketch9.addConstraint(Sketcher.Constraint("Coincident", 16, 2, 17, 1))
sketch9.addConstraint(Sketcher.Constraint("Coincident", 17, 2, 18, 2))
sketch9.addConstraint(Sketcher.Constraint("Coincident", 18, 1, 19, 1))
sketch9.addConstraint(Sketcher.Constraint("Coincident", 19, 2, 20, 1))
sketch9.addConstraint(Sketcher.Constraint("Coincident", 20, 2, 21, 1))
sketch9.addConstraint(Sketcher.Constraint("Coincident", 21, 2, 16, 1))
sketch9.addConstraint(Sketcher.Constraint("Vertical", 0))
sketch9.addConstraint(Sketcher.Constraint("Horizontal", 1))
sketch9.addConstraint(Sketcher.Constraint("Vertical", 3))
sketch9.addConstraint(Sketcher.Constraint("Horizontal", 4))
sketch9.addConstraint(Sketcher.Constraint("Horizontal", 5))
sketch9.addConstraint(Sketcher.Constraint("Vertical", 6))
sketch9.addConstraint(Sketcher.Constraint("Horizontal", 7))
sketch9.addConstraint(Sketcher.Constraint("Vertical", 8))
sketch9.addConstraint(Sketcher.Constraint("Horizontal", 10))
sketch9.addConstraint(Sketcher.Constraint("Vertical", 11))
sketch9.addConstraint(Sketcher.Constraint("Horizontal", 12))
sketch9.addConstraint(Sketcher.Constraint("Vertical", 13))
sketch9.addConstraint(Sketcher.Constraint("Horizontal", 14))
sketch9.addConstraint(Sketcher.Constraint("Vertical", 16))
sketch9.addConstraint(Sketcher.Constraint("Horizontal", 17))
sketch9.addConstraint(Sketcher.Constraint("Horizontal", 19))
sketch9.addConstraint(Sketcher.Constraint("Vertical", 20))
sketch9.addConstraint(Sketcher.Constraint("Horizontal", 21))
sketch9.addConstraint(Sketcher.Constraint("Equal", 2, 9))
sketch9.addConstraint(Sketcher.Constraint("Equal", 9, 15))
sketch9.addConstraint(Sketcher.Constraint("Equal", 15, 18))
sketch9.addConstraint(Sketcher.Constraint("Symmetric", 2, 3, 9, 3, -1))
sketch9.addConstraint(Sketcher.Constraint("Symmetric", 15, 3, 18, 3, -1))
sketch9.addConstraint(Sketcher.Constraint("Symmetric", 0, 2, 5, 2, -1))
sketch9.addConstraint(Sketcher.Constraint("Symmetric", 3, 2, 7, 2, -1))
sketch9.addConstraint(Sketcher.Constraint("Symmetric", 10, 2, 16, 2, -1))
sketch9.addConstraint(Sketcher.Constraint("Horizontal", 2, 3, 15, 3))
sketch9.addConstraint(Sketcher.Constraint("Horizontal", 1, 2, 10, 2))
sketch9.addConstraint(Sketcher.Constraint("Horizontal", 4, 2, 11, 2))
sketch9.addConstraint(Sketcher.Constraint("Horizontal", 10, 2, 13, 2))
sketch9.addConstraint(Sketcher.Constraint("Horizontal", 17, 2, 18, 1))
sketch9.addConstraint(Sketcher.Constraint("Horizontal", 7, 2, 20, 2))
sketch9.addConstraint(Sketcher.Constraint("Equal", 5, 10))
sketch9.addConstraint(Sketcher.Constraint("DistanceX", 12, 2, 12, 1, 7.0))
sketch9.addConstraint(Sketcher.Constraint("DistanceY", 0, 2, 0, 1, 5.0))
sketch9.addConstraint(Sketcher.Constraint("Radius", 2, 2.25))
sketch9.addConstraint(Sketcher.Constraint("DistanceX", 4, 2, 4, 1, 3.3))
sketch9.addConstraint(Sketcher.Constraint("DistanceY", 0, 2, -1, 1, 31.0))
sketch9.addConstraint(Sketcher.Constraint("DistanceY", 2, 3, 9, 3, 59.0))
sketch9.addConstraint(Sketcher.Constraint("DistanceX", 2, 3, 2, 1, 1.0))
sketch9.addConstraint(Sketcher.Constraint("DistanceX", 21, 1, 21, 2, 5.933))
sketch9.addConstraint(Sketcher.Constraint("DistanceX", -1, 1, 2, 3, 46.25))
sketch9.addConstraint(Sketcher.Constraint("DistanceX", 19, 2, -1, 1, 40.75))
pad5 = body.newObject("PartDesign::Pad", "Pad004")
pad5.Profile = sketch9
pad5.Length = 20

# Sketch on XZ plane
sketch10 = body.newObject("Sketcher::SketchObject", "Sketch009")
sketch10.AttachmentSupport = (doc.getObject("XZ_Plane"), [""])
sketch10.MapMode = "FlatFace"
sketch10.AttachmentOffset = App.Placement(Vector(0, 0, 20), App.Rotation())
sketch10.addGeometry(Part.Circle(Vector(46.2, -29.5, 0), Vector(0, 0, 1), 1.8), False)
sketch10.addGeometry(Part.Circle(Vector(-37.1, -29.5, 0), Vector(0, 0, 1), 1.8), False)
sketch10.addGeometry(Part.Circle(Vector(-37.1, 29.5, 0), Vector(0, 0, 1), 1.8), False)
sketch10.addGeometry(Part.Circle(Vector(46.2, 29.5, 0), Vector(0, 0, 1), 1.8), False)
sketch10.addConstraint(Sketcher.Constraint("Equal", 0, 1))
sketch10.addConstraint(Sketcher.Constraint("Equal", 1, 2))
sketch10.addConstraint(Sketcher.Constraint("Equal", 2, 3))
sketch10.addConstraint(Sketcher.Constraint("Symmetric", 1, 3, 2, 3, -1))
sketch10.addConstraint(Sketcher.Constraint("Symmetric", 0, 3, 3, 3, -1))
sketch10.addConstraint(Sketcher.Constraint("Horizontal", 0, 3, 1, 3))
sketch10.addConstraint(Sketcher.Constraint("Diameter", 0, 3.5))
sketch10.addConstraint(Sketcher.Constraint("DistanceY", 1, 3, 2, 3, 59.0))
sketch10.addConstraint(Sketcher.Constraint("DistanceX", -1, 1, 0, 3, 46.25))
sketch10.addConstraint(Sketcher.Constraint("DistanceX", 1, 3, -1, 1, 37.117))
pocket5 = body.newObject("PartDesign::Pocket", "Pocket004")
pocket5.Profile = sketch10
pocket5.Length = 15

# Sketch on YZ plane
sketch11 = body.newObject("Sketcher::SketchObject", "Sketch010")
sketch11.AttachmentSupport = (doc.getObject("YZ_Plane"), [""])
sketch11.MapMode = "FlatFace"
sketch11.AttachmentOffset = App.Placement(Vector(0, 0, 55.75), App.Rotation())
sketch11.addGeometry(Part.Circle(Vector(-6, 16, 0), Vector(0, 0, 1), 8), False)
sketch11.addConstraint(Sketcher.Constraint("Diameter", 0, 15.0))
sketch11.addConstraint(Sketcher.Constraint("DistanceX", 0, 3, -1, 1, 6.0))
sketch11.addConstraint(Sketcher.Constraint("DistanceY", -1, 1, 0, 3, 16.0))
pad6 = body.newObject("PartDesign::Pad", "Pad005")
pad6.Profile = sketch11
pad6.Length = 3

# Sketch on YZ plane
sketch12 = body.newObject("Sketcher::SketchObject", "Sketch011")
sketch12.AttachmentSupport = (doc.getObject("YZ_Plane"), [""])
sketch12.MapMode = "FlatFace"
sketch12.AttachmentOffset = App.Placement(Vector(0, 0, -58.75), App.Rotation())
sketch12.addGeometry(Part.Circle(Vector(-6, 16, 0), Vector(0, 0, 1), 8), False)
sketch12.addConstraint(Sketcher.Constraint("Diameter", 0, 15.0))
sketch12.addConstraint(Sketcher.Constraint("DistanceX", 0, 3, -1, 1, 6.0))
sketch12.addConstraint(Sketcher.Constraint("DistanceY", -1, 1, 0, 3, 16.0))
pad7 = body.newObject("PartDesign::Pad", "Pad006")
pad7.Profile = sketch12
pad7.Length = 3

doc.recompute()
